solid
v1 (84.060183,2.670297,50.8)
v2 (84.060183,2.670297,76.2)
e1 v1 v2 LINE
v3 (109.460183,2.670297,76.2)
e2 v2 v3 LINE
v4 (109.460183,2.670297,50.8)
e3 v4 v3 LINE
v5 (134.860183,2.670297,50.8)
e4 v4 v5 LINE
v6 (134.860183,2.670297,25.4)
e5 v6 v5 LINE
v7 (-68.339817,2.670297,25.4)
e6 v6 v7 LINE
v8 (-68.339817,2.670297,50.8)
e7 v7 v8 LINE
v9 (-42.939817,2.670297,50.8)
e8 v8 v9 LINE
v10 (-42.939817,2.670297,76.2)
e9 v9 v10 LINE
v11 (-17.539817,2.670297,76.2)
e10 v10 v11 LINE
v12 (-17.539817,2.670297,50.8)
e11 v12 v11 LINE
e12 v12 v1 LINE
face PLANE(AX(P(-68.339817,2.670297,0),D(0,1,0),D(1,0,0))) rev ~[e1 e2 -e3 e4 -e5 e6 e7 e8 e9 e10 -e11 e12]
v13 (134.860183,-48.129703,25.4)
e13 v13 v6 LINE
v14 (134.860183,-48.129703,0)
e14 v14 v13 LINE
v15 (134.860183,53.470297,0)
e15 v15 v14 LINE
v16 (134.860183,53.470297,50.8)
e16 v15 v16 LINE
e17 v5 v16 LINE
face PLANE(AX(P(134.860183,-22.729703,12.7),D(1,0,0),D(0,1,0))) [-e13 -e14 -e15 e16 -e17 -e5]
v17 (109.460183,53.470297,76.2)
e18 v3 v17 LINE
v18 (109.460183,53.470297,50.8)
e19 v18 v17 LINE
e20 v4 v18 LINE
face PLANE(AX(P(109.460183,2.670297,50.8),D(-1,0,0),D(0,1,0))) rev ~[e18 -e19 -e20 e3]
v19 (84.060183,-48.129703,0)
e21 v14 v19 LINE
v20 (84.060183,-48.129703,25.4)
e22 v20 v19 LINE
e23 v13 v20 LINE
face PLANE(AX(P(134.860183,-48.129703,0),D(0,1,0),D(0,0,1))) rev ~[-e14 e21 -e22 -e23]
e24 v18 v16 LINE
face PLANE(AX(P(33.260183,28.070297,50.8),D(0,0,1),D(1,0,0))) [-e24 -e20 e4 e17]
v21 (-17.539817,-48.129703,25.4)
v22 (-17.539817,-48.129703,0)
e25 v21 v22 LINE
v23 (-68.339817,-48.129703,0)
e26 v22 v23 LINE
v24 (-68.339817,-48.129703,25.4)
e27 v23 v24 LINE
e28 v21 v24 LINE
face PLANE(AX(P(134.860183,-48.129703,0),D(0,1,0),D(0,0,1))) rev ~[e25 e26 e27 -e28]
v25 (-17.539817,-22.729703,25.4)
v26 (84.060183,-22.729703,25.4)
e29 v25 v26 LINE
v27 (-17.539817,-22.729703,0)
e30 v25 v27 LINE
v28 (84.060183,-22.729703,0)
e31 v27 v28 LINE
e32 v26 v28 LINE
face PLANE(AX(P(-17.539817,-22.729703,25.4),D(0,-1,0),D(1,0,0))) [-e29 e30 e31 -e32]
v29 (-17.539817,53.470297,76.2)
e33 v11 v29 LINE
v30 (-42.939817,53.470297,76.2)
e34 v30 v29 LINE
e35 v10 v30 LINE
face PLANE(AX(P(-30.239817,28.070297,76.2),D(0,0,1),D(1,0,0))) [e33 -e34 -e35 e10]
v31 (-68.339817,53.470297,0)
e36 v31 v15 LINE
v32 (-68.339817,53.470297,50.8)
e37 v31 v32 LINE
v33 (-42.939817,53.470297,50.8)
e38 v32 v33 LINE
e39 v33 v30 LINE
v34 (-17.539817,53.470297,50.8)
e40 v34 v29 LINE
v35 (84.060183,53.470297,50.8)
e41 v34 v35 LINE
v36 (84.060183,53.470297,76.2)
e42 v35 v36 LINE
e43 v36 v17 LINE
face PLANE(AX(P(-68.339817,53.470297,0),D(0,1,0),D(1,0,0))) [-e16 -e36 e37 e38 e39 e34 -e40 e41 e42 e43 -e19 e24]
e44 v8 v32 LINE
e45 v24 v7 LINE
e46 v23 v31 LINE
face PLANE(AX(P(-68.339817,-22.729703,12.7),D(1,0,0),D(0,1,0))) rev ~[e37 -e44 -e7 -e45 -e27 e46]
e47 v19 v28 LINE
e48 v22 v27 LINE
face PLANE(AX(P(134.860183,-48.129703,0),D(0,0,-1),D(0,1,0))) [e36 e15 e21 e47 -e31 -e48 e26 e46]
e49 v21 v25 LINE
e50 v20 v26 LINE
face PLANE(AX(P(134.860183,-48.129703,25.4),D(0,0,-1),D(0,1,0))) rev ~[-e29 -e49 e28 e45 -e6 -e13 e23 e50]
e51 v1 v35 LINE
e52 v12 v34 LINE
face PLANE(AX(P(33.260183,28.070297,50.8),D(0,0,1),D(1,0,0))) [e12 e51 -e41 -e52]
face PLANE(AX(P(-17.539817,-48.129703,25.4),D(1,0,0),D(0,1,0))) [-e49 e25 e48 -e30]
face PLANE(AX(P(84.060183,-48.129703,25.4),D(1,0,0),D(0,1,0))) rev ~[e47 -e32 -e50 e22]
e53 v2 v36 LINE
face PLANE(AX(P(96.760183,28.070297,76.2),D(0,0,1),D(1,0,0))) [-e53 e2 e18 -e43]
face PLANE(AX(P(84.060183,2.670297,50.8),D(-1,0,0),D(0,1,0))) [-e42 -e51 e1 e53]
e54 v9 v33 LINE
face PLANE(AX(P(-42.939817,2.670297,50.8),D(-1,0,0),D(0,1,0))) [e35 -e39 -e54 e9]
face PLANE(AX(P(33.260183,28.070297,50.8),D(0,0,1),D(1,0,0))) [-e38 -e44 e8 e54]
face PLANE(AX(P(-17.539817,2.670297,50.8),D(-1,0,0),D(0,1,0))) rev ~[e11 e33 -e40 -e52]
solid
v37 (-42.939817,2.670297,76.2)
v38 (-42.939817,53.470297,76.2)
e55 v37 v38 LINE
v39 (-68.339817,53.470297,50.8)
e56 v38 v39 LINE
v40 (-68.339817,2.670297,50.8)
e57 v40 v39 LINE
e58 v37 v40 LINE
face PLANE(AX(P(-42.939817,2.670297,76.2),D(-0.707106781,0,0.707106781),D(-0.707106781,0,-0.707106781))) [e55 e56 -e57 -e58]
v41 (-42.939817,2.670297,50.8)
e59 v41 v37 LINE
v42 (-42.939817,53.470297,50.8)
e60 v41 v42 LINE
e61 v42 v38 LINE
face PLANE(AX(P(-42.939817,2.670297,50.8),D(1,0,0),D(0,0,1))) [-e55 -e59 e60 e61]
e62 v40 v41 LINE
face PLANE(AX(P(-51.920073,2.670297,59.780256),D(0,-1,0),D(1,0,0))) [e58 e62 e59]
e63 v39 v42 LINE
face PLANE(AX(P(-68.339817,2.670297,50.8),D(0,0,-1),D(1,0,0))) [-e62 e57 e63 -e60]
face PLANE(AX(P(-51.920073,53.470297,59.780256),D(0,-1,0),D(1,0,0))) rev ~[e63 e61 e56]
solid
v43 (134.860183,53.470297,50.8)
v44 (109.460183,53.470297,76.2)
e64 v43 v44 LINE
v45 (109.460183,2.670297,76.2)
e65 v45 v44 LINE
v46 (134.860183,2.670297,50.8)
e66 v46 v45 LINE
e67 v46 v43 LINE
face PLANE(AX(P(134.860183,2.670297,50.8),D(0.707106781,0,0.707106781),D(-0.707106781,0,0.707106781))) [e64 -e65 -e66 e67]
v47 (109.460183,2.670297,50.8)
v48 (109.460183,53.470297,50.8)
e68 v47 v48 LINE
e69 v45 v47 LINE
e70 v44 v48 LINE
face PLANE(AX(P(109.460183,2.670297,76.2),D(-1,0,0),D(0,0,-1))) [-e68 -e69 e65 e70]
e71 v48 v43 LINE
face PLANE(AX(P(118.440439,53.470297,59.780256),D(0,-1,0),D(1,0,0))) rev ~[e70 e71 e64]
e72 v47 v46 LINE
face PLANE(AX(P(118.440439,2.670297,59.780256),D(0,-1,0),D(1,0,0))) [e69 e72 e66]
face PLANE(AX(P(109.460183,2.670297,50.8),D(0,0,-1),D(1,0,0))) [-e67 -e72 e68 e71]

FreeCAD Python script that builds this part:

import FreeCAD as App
import Part
import Sketcher
from FreeCAD import Vector
Q = App.Units.Quantity


def add_polygon(sketch, points):
    """Adds a closed chain of lines whose ends are joined by coincident constraints."""
    first, n = sketch.GeometryCount, len(points)
    for a, b in zip(points, points[1:] + points[:1]):
        sketch.addGeometry(Part.LineSegment(App.Vector(*a, 0), App.Vector(*b, 0)), False)
    for i in range(n):
        sketch.addConstraint(Sketcher.Constraint("Coincident", first + i, 2, first + (i + 1) % n, 1))

doc = App.newDocument("Part")
body = doc.addObject("PartDesign::Body", "Body")

sketch1 = body.newObject("Sketcher::SketchObject", "Sketch")
sketch1.AttachmentSupport = (doc.getObject("XY_Plane"), [""])
sketch1.MapMode = "FlatFace"
add_polygon(sketch1, [(-68, 53), (-68, 3), (135, 3), (135, 53)])
sketch1.addConstraint([
    Sketcher.Constraint("Vertical", 0),
    Sketcher.Constraint("Horizontal", 1),
    Sketcher.Constraint("Vertical", 2),
    Sketcher.Constraint("Horizontal", 3),
    Sketcher.Constraint("DistanceX", 1, 1, 1, 2, Q("8 in")),
    Sketcher.Constraint("DistanceY", 0, 2, 0, 1, Q("2 in")),
    Sketcher.Constraint("DistanceX", 0, 2, -1, 1, 68.339817),
    Sketcher.Constraint("DistanceY", -1, 1, 0, 2, 2.670297),
])
pad1 = body.newObject("PartDesign::Pad", "Pad")
pad1.Profile = sketch1
pad1.Length = Q("2 in")

sketch2 = body.newObject("Sketcher::SketchObject", "Sketch001")
sketch2.AttachmentSupport = (doc.getObject("XY_Plane"), [""])
sketch2.MapMode = "FlatFace"
sketch2.AttachmentOffset = App.Placement(Vector(0, 0, 2 * 25.4), App.Rotation())
add_polygon(sketch2, [(84, 53), (84, 3), (109, 3), (109, 53)])
sketch2.addConstraint([
    Sketcher.Constraint("Vertical", 0),
    Sketcher.Constraint("Horizontal", 1),
    Sketcher.Constraint("Vertical", 2),
    Sketcher.Constraint("Horizontal", 3),
    Sketcher.Constraint("DistanceX", 1, 1, 1, 2, Q("1 in")),
    Sketcher.Constraint("DistanceY", 0, 2, 0, 1, Q("2 in")),
    Sketcher.Constraint("DistanceX", -1, 1, 0, 2, 84.060183),
    Sketcher.Constraint("DistanceY", -1, 1, 0, 2, 2.670297),
])
pad2 = body.newObject("PartDesign::Pad", "Pad001")
pad2.Profile = sketch2
pad2.Length = Q("1 in")

sketch3 = body.newObject("Sketcher::SketchObject", "Sketch002")
sketch3.AttachmentSupport = (doc.getObject("XY_Plane"), [""])
sketch3.MapMode = "FlatFace"
sketch3.AttachmentOffset = App.Placement(Vector(0, 0, 2 * 25.4), App.Rotation())
add_polygon(sketch3, [(-43, 53), (-43, 3), (-18, 3), (-18, 53)])
sketch3.addConstraint([
    Sketcher.Constraint("Vertical", 0),
    Sketcher.Constraint("Horizontal", 1),
    Sketcher.Constraint("Vertical", 2),
    Sketcher.Constraint("Horizontal", 3),
    Sketcher.Constraint("DistanceX", 1, 1, 1, 2, Q("1 in")),
    Sketcher.Constraint("DistanceY", 0, 2, 0, 1, Q("2 in")),
    Sketcher.Constraint("DistanceX", 0, 2, -1, 1, 42.939817),
    Sketcher.Constraint("DistanceY", -1, 1, 0, 2, 2.670297),
])
pad3 = body.newObject("PartDesign::Pad", "Pad002")
pad3.Profile = sketch3
pad3.Length = Q("1 in")

sketch4 = body.newObject("Sketcher::SketchObject", "Sketch003")
sketch4.AttachmentSupport = (doc.getObject("YZ_Plane"), [""])
sketch4.MapMode = "FlatFace"
sketch4.AttachmentOffset = App.Placement(Vector(0, 0, 134.860183), App.Rotation())
add_polygon(sketch4, [(-48, 25), (-48, 0), (3, 0), (3, 25)])
sketch4.addConstraint([
    Sketcher.Constraint("Vertical", 0),
    Sketcher.Constraint("Horizontal", 1),
    Sketcher.Constraint("Vertical", 2),
    Sketcher.Constraint("Horizontal", 3),
    Sketcher.Constraint("PointOnObject", 0, 2, -1),
    Sketcher.Constraint("DistanceX", 1, 1, 1, 2, Q("2 in")),
    Sketcher.Constraint("DistanceY", 0, 2, 0, 1, Q("1 in")),
    Sketcher.Constraint("DistanceX", 0, 2, -1, 1, 48.129703),
])
pad4 = body.newObject("PartDesign::Pad", "Pad003")
pad4.Profile = sketch4
pad4.Length = Q("8 in")
pad4.Reversed = True

sketch5 = body.newObject("Sketcher::SketchObject", "Sketch004")
sketch5.AttachmentSupport = (doc.getObject("XY_Plane"), [""])
sketch5.MapMode = "FlatFace"
sketch5.AttachmentOffset = App.Placement(Vector(0, 0, 1 * 25.4), App.Rotation())
add_polygon(sketch5, [(-18, -23), (-18, -48), (84, -48), (84, -23)])
sketch5.addConstraint([
    Sketcher.Constraint("Vertical", 0),
    Sketcher.Constraint("Horizontal", 1),
    Sketcher.Constraint("Vertical", 2),
    Sketcher.Constraint("Horizontal", 3),
    Sketcher.Constraint("DistanceX", 1, 1, 1, 2, Q("4 in")),
    Sketcher.Constraint("DistanceY", 0, 2, 0, 1, Q("1 in")),
    Sketcher.Constraint("DistanceX", 0, 2, -1, 1, 17.539817),
    Sketcher.Constraint("DistanceY", 0, 2, -1, 1, 48.129703),
])
pocket1 = body.newObject("PartDesign::Pocket", "Pocket")
pocket1.Profile = sketch5
pocket1.Length = Q("1 in")
body2 = doc.addObject("PartDesign::Body", "Body001")
body2.AllowCompound = True

sketch6 = body2.newObject("Sketcher::SketchObject", "Sketch005")
sketch6.AttachmentSupport = (doc.getObject("XZ_Plane001"), [""])
sketch6.MapMode = "FlatFace"
sketch6.AttachmentOffset = App.Placement(Vector(0, 0, -2.670297), App.Rotation())
add_polygon(sketch6, [(-43, 76), (-68, 51), (-43, 51)])
add_polygon(sketch6, [(135, 51), (109, 76), (109, 51)])
sketch6.addConstraint([
    Sketcher.Constraint("Horizontal", 1),
    Sketcher.Constraint("Vertical", 2),
    Sketcher.Constraint("Vertical", 4),
    Sketcher.Constraint("Horizontal", 5),
    Sketcher.Constraint("Perpendicular", 0, 3),
    Sketcher.Constraint("Horizontal", 2, 2, 3, 2),
    Sketcher.Constraint("Horizontal", 1, 2, 4, 2),
    Sketcher.Constraint("Equal", 1, 5),
    Sketcher.Constraint("DistanceX", 1, 1, 1, 2, Q("1 in")),
    Sketcher.Constraint("DistanceY", -1, 1, 0, 2, Q("2 in")),
    Sketcher.Constraint("DistanceX", 2, 2, 3, 2, Q("6 in")),
    Sketcher.Constraint("DistanceX", 0, 2, -1, 1, 68.339817),
])
pad5 = body2.newObject("PartDesign::Pad", "Pad004")
pad5.Profile = sketch6
pad5.Length = Q("2 in")
pad5.Reversed = True

doc.recompute()
